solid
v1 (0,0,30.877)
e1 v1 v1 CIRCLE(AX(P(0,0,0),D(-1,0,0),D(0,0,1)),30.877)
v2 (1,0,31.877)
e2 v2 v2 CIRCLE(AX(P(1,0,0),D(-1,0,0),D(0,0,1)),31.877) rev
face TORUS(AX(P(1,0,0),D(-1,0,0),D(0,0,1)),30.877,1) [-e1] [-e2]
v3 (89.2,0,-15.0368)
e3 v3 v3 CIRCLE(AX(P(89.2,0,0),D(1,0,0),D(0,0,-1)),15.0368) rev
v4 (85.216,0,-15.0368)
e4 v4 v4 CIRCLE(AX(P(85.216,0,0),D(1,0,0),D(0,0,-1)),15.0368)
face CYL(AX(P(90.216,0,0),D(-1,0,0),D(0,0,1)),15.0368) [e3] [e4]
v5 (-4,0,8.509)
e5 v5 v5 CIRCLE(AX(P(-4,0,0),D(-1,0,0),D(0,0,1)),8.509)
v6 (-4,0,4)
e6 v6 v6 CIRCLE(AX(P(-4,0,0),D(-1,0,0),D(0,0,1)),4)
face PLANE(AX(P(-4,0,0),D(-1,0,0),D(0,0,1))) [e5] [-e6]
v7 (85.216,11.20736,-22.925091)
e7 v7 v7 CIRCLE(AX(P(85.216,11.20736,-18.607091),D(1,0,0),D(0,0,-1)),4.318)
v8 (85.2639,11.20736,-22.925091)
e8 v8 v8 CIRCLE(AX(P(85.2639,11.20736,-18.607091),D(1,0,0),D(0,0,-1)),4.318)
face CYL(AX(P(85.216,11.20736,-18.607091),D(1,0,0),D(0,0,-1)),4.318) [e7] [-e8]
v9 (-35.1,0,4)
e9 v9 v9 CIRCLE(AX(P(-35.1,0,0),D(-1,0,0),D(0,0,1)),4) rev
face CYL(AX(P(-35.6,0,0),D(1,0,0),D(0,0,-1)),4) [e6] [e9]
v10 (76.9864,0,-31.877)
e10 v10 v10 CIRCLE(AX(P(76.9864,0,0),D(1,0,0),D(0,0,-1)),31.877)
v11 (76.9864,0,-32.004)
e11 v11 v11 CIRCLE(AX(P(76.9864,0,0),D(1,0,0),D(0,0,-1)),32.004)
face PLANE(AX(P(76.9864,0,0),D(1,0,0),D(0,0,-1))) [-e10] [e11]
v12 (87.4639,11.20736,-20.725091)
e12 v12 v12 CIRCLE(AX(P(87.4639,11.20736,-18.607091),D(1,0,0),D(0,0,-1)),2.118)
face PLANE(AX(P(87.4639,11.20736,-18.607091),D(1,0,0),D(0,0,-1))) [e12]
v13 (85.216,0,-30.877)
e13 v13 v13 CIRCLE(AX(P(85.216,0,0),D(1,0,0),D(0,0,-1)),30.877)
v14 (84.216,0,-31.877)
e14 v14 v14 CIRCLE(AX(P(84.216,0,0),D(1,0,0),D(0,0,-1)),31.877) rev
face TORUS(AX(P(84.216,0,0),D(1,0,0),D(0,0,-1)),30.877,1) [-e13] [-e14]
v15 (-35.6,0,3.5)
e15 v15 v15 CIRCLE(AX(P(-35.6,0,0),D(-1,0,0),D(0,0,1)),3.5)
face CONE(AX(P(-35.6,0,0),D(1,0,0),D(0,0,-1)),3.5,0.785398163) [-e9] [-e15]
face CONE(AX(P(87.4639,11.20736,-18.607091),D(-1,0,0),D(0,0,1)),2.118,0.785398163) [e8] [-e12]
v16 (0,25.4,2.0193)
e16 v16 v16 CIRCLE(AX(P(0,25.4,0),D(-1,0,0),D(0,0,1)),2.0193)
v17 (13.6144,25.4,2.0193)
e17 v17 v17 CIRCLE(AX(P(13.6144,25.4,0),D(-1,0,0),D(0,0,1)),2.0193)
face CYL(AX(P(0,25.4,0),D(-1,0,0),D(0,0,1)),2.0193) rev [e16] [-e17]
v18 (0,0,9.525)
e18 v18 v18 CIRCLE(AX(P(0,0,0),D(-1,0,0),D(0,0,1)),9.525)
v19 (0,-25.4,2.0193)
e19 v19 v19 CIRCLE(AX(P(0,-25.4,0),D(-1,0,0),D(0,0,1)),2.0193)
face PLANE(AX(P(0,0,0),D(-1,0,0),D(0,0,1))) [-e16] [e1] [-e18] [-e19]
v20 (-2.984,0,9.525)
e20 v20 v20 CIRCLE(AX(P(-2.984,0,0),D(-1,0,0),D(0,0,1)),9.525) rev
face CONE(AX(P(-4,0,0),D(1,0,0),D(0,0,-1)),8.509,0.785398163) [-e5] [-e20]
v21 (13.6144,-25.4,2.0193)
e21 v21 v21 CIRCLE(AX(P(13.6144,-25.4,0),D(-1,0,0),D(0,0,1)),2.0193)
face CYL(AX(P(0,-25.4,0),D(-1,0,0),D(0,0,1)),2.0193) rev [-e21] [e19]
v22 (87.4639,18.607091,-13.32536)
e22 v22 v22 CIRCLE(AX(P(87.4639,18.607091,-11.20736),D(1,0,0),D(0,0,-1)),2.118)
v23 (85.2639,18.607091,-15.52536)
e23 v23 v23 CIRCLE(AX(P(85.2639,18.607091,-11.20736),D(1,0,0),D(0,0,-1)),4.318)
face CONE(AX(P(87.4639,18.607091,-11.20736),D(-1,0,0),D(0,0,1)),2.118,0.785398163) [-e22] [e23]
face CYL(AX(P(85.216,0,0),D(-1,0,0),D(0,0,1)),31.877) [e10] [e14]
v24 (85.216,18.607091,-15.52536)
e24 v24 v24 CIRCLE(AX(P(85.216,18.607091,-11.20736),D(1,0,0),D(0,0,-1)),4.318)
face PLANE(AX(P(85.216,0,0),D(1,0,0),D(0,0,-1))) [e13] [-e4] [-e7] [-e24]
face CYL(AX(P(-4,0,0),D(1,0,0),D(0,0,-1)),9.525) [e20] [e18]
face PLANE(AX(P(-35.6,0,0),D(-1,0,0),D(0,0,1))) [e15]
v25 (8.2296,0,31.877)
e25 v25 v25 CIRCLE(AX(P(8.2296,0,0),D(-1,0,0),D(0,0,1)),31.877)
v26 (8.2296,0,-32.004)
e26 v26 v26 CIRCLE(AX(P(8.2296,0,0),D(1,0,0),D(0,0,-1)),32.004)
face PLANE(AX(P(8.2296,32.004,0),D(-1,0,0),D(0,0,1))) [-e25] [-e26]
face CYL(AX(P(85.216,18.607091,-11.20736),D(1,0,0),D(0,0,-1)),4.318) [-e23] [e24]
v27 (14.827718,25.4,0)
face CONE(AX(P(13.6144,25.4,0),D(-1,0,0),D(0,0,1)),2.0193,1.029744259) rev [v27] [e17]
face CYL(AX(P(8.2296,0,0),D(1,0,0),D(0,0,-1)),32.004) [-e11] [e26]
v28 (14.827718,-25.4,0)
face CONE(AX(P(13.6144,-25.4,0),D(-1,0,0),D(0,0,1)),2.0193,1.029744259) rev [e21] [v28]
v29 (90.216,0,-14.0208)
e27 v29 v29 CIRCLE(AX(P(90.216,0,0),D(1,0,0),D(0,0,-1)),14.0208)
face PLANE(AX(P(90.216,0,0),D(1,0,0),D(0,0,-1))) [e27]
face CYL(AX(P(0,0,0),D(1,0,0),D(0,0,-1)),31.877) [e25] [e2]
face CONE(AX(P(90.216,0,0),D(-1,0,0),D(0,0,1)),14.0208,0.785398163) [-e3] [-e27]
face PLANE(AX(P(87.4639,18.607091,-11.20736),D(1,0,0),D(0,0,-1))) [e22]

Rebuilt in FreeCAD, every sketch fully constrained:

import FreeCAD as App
import Part
import Sketcher

V = App.Vector
Q = App.Units.Quantity


def edges_at(feature, points):
    """Names of the edges that pass closest to the given points."""
    edges = feature.Shape.Edges
    near = lambda p: min(range(len(edges)), key=lambda i: edges[i].distToShape(Part.Vertex(*p))[0])
    return sorted({f"Edge{near(p) + 1}" for p in points})


def add_polygon(sketch, points):
    """Adds a closed chain of lines whose ends are joined by coincident constraints."""
    first, n = sketch.GeometryCount, len(points)
    for a, b in zip(points, points[1:] + points[:1]):
        sketch.addGeometry(Part.LineSegment(App.Vector(*a, 0), App.Vector(*b, 0)), False)
    for i in range(n):
        sketch.addConstraint(Sketcher.Constraint("Coincident", first + i, 2, first + (i + 1) % n, 1))

doc = App.newDocument("Part")
body = doc.addObject("PartDesign::Body", "Body")

# Sketch on XY plane
sketch1 = body.newObject("Sketcher::SketchObject", "Sketch")
sketch1.AttachmentSupport = (doc.getObject("XY_Plane"), [""])
sketch1.MapMode = "FlatFace"
add_polygon(sketch1, [(8, 32), (8, 0), (77, 0), (77, 32)])  # lines 0-3
sketch1.addConstraint([
    Sketcher.Constraint("Vertical", 0),
    Sketcher.Constraint("Horizontal", 1),
    Sketcher.Constraint("Vertical", 2),
    Sketcher.Constraint("Horizontal", 3),
    Sketcher.Constraint("PointOnObject", 0, 2, -1),
    Sketcher.Constraint("DistanceY", 0, 2, 0, 1, Q("1.26 in")),
    Sketcher.Constraint("DistanceX", -1, 1, 0, 2, Q("0.324 in")),
    Sketcher.Constraint("DistanceX", 1, 1, 1, 2, 68.7568),
])
revolution = body.newObject("PartDesign::Revolution", "Revolution")
revolution.Profile = sketch1
revolution.ReferenceAxis = (sketch1, ["H_Axis"])
revolution.Angle = 360

# Sketch on YZ plane
sketch2 = body.newObject("Sketcher::SketchObject", "Sketch001")
sketch2.AttachmentSupport = (doc.getObject("YZ_Plane"), [""])
sketch2.MapMode = "FlatFace"
sketch2.AttachmentOffset = App.Placement(V(0, 0, 76.9864), App.Rotation())
sketch2.addGeometry(Part.Circle(V(0, 0, 0), V(0, 0, 1), 32), False)
sketch2.addConstraint([
    Sketcher.Constraint("Coincident", 0, 3, -1, 1),
    Sketcher.Constraint("Diameter", 0, Q("2.51 in")),
])
pad1 = body.newObject("PartDesign::Pad", "Pad")
pad1.Profile = sketch2
pad1.Length = Q("0.324 in")

# Sketch on YZ plane
sketch3 = body.newObject("Sketcher::SketchObject", "Sketch002")
sketch3.AttachmentSupport = (doc.getObject("YZ_Plane"), [""])
sketch3.MapMode = "FlatFace"
sketch3.AttachmentOffset = App.Placement(V(0, 0, 85.216), App.Rotation())
sketch3.addGeometry(Part.Circle(V(0, 0, 0), V(0, 0, 1), 15), False)
sketch3.addConstraint([
    Sketcher.Constraint("Coincident", 0, 3, -1, 1),
    Sketcher.Constraint("Diameter", 0, Q("1.184 in")),
])
pad2 = body.newObject("PartDesign::Pad", "Pad001")
pad2.Profile = sketch3
pad2.Length = 5

# Sketch on YZ plane
sketch4 = body.newObject("Sketcher::SketchObject", "Sketch003")
sketch4.AttachmentSupport = (doc.getObject("YZ_Plane"), [""])
sketch4.MapMode = "FlatFace"
sketch4.AttachmentOffset = App.Placement(V(0, 0, 0.324 * 25.4), App.Rotation())
sketch4.addGeometry(Part.Circle(V(0, 0, 0), V(0, 0, 1), 32), False)
sketch4.addConstraint([
    Sketcher.Constraint("Coincident", 0, 3, -1, 1),
    Sketcher.Constraint("Diameter", 0, Q("2.51 in")),
])
pad3 = body.newObject("PartDesign::Pad", "Pad002")
pad3.Profile = sketch4
pad3.Length = Q("0.324 in")
pad3.Reversed = True

# Sketch on YZ plane
sketch5 = body.newObject("Sketcher::SketchObject", "Sketch004")
sketch5.AttachmentSupport = (doc.getObject("YZ_Plane"), [""])
sketch5.MapMode = "FlatFace"
sketch5.addGeometry(Part.Circle(V(0, 0, 0), V(0, 0, 1), 10), False)
sketch5.addConstraint([
    Sketcher.Constraint("Coincident", 0, 3, -1, 1),
    Sketcher.Constraint("Diameter", 0, Q("0.75 in")),
])
pad4 = body.newObject("PartDesign::Pad", "Pad003")
pad4.Profile = sketch5
pad4.Length = 4
pad4.Reversed = True

# Sketch on YZ plane
sketch6 = body.newObject("Sketcher::SketchObject", "Sketch005")
sketch6.AttachmentSupport = (doc.getObject("YZ_Plane"), [""])
sketch6.MapMode = "FlatFace"
sketch6.AttachmentOffset = App.Placement(V(0, 0, -4), App.Rotation())
sketch6.addGeometry(Part.Circle(V(0, 0, 0), V(0, 0, 1), 4), False)
sketch6.addConstraint([
    Sketcher.Constraint("Coincident", 0, 3, -1, 1),
    Sketcher.Constraint("Diameter", 0, 8.0),
])
pad5 = body.newObject("PartDesign::Pad", "Pad004")
pad5.Profile = sketch6
pad5.Length = 31.6
pad5.Reversed = True

# Sketch on XY plane
sketch7 = body.newObject("Sketcher::SketchObject", "Sketch006")
sketch7.AttachmentSupport = (doc.getObject("XY_Plane"), [""])
sketch7.MapMode = "FlatFace"
sketch7.AttachmentOffset = App.Placement(V(0, 0, -18.607091), App.Rotation())
add_polygon(sketch7, [(85.216, 15.525), (85.216, 11.207), (87.464, 11.207), (87.464, 13.325), (85.264, 15.525)])  # lines 0-4
sketch7.addGeometry(Part.LineSegment(V(85.216, 11.207, 0), V(87.464, 11.207, 0)), True)  # axis
sketch7.addConstraint([
    Sketcher.Constraint("Vertical", 0),
    Sketcher.Constraint("Horizontal", 1),
    Sketcher.Constraint("Vertical", 2),
    Sketcher.Constraint("Horizontal", 4),
    Sketcher.Constraint("Horizontal", 5),
    Sketcher.Constraint("Coincident", 5, 1, 0, 2),
    Sketcher.Constraint("Vertical", 2, 2, 5, 2),
    Sketcher.Constraint("Angle", 3, Q("135 deg")),
    Sketcher.Constraint("DistanceY", 0, 2, 0, 1, Q("0.17 in")),
    Sketcher.Constraint("DistanceX", 1, 1, 1, 2, Q("0.0885 in")),
    Sketcher.Constraint("DistanceX", 4, 2, 4, 1, 0.0479),
    Sketcher.Constraint("DistanceX", -1, 1, 0, 2, 85.216),
    Sketcher.Constraint("DistanceY", -1, 1, 0, 2, 11.20736),
])
revolution2 = body.newObject("PartDesign::Revolution", "Revolution001")
revolution2.Profile = sketch7
revolution2.ReferenceAxis = (sketch7, ["Axis0"])
revolution2.Angle = 360

# Sketch on XY plane
sketch8 = body.newObject("Sketcher::SketchObject", "Sketch007")
sketch8.AttachmentSupport = (doc.getObject("XY_Plane"), [""])
sketch8.MapMode = "FlatFace"
sketch8.AttachmentOffset = App.Placement(V(0, 0, -11.20736), App.Rotation())
add_polygon(sketch8, [(85.216, 22.925), (85.216, 18.607), (87.464, 18.607), (87.464, 20.725), (85.264, 22.925)])  # lines 0-4
sketch8.addGeometry(Part.LineSegment(V(85.216, 18.607, 0), V(87.464, 18.607, 0)), True)  # axis
sketch8.addConstraint([
    Sketcher.Constraint("Vertical", 0),
    Sketcher.Constraint("Horizontal", 1),
    Sketcher.Constraint("Vertical", 2),
    Sketcher.Constraint("Horizontal", 4),
    Sketcher.Constraint("Horizontal", 5),
    Sketcher.Constraint("Coincident", 5, 1, 0, 2),
    Sketcher.Constraint("Vertical", 2, 2, 5, 2),
    Sketcher.Constraint("Angle", 3, Q("135 deg")),
    Sketcher.Constraint("DistanceY", 0, 2, 0, 1, Q("0.17 in")),
    Sketcher.Constraint("DistanceX", 1, 1, 1, 2, Q("0.0885 in")),
    Sketcher.Constraint("DistanceX", 4, 2, 4, 1, 0.0479),
    Sketcher.Constraint("DistanceX", -1, 1, 0, 2, 85.216),
    Sketcher.Constraint("DistanceY", -1, 1, 0, 2, 18.607091),
])
revolution3 = body.newObject("PartDesign::Revolution", "Revolution002")
revolution3.Profile = sketch8
revolution3.ReferenceAxis = (sketch8, ["Axis0"])
revolution3.Angle = 360

# Sketch on YZ plane
sketch9 = body.newObject("Sketcher::SketchObject", "Sketch008")
sketch9.AttachmentSupport = (doc.getObject("YZ_Plane"), [""])
sketch9.MapMode = "FlatFace"
sketch9.addGeometry([
    Part.Circle(V(25.4, 0, 0), V(0, 0, 1), 2),
    Part.Circle(V(-25.4, 0, 0), V(0, 0, 1), 2),
], False)
sketch9.addConstraint([
    Sketcher.Constraint("Equal", 0, 1),
    Sketcher.Constraint("Symmetric", 0, 3, 1, 3, -1, 1),
    Sketcher.Constraint("PointOnObject", 0, 3, -1),
    Sketcher.Constraint("Diameter", 0, Q("0.159 in")),
    Sketcher.Constraint("DistanceX", -1, 1, 0, 3, Q("1 in")),
])
doc.recompute()
hole = body.newObject("PartDesign::Hole", "Hole")
hole.Profile = sketch9
hole.ThreadType = "None"
hole.Diameter = Q("0.159 in")
hole.DepthType = "Dimension"
hole.Depth = Q("0.536 in")
hole.DrillPoint = "Angled"
hole.DrillPointAngle = 118
hole.Reversed = True
doc.recompute()

chamfer = body.newObject("PartDesign::Chamfer", "Chamfer")
chamfer.Base = (hole, edges_at(hole, [(90.216, 0, 15.037), (-4, 0, -9.525)]))
chamfer.Size = Q("0.04 in")
doc.recompute()

chamfer2 = body.newObject("PartDesign::Chamfer", "Chamfer001")
chamfer2.Base = (chamfer, edges_at(chamfer, [(-35.6, 0, -4)]))
chamfer2.Size = 0.5
doc.recompute()

fillet = body.newObject("PartDesign::Fillet", "Fillet")
fillet.Base = (chamfer2, edges_at(chamfer2, [(0, 0, -31.877), (85.216, 0, 31.877)]))
fillet.Radius = 1

doc.recompute()
